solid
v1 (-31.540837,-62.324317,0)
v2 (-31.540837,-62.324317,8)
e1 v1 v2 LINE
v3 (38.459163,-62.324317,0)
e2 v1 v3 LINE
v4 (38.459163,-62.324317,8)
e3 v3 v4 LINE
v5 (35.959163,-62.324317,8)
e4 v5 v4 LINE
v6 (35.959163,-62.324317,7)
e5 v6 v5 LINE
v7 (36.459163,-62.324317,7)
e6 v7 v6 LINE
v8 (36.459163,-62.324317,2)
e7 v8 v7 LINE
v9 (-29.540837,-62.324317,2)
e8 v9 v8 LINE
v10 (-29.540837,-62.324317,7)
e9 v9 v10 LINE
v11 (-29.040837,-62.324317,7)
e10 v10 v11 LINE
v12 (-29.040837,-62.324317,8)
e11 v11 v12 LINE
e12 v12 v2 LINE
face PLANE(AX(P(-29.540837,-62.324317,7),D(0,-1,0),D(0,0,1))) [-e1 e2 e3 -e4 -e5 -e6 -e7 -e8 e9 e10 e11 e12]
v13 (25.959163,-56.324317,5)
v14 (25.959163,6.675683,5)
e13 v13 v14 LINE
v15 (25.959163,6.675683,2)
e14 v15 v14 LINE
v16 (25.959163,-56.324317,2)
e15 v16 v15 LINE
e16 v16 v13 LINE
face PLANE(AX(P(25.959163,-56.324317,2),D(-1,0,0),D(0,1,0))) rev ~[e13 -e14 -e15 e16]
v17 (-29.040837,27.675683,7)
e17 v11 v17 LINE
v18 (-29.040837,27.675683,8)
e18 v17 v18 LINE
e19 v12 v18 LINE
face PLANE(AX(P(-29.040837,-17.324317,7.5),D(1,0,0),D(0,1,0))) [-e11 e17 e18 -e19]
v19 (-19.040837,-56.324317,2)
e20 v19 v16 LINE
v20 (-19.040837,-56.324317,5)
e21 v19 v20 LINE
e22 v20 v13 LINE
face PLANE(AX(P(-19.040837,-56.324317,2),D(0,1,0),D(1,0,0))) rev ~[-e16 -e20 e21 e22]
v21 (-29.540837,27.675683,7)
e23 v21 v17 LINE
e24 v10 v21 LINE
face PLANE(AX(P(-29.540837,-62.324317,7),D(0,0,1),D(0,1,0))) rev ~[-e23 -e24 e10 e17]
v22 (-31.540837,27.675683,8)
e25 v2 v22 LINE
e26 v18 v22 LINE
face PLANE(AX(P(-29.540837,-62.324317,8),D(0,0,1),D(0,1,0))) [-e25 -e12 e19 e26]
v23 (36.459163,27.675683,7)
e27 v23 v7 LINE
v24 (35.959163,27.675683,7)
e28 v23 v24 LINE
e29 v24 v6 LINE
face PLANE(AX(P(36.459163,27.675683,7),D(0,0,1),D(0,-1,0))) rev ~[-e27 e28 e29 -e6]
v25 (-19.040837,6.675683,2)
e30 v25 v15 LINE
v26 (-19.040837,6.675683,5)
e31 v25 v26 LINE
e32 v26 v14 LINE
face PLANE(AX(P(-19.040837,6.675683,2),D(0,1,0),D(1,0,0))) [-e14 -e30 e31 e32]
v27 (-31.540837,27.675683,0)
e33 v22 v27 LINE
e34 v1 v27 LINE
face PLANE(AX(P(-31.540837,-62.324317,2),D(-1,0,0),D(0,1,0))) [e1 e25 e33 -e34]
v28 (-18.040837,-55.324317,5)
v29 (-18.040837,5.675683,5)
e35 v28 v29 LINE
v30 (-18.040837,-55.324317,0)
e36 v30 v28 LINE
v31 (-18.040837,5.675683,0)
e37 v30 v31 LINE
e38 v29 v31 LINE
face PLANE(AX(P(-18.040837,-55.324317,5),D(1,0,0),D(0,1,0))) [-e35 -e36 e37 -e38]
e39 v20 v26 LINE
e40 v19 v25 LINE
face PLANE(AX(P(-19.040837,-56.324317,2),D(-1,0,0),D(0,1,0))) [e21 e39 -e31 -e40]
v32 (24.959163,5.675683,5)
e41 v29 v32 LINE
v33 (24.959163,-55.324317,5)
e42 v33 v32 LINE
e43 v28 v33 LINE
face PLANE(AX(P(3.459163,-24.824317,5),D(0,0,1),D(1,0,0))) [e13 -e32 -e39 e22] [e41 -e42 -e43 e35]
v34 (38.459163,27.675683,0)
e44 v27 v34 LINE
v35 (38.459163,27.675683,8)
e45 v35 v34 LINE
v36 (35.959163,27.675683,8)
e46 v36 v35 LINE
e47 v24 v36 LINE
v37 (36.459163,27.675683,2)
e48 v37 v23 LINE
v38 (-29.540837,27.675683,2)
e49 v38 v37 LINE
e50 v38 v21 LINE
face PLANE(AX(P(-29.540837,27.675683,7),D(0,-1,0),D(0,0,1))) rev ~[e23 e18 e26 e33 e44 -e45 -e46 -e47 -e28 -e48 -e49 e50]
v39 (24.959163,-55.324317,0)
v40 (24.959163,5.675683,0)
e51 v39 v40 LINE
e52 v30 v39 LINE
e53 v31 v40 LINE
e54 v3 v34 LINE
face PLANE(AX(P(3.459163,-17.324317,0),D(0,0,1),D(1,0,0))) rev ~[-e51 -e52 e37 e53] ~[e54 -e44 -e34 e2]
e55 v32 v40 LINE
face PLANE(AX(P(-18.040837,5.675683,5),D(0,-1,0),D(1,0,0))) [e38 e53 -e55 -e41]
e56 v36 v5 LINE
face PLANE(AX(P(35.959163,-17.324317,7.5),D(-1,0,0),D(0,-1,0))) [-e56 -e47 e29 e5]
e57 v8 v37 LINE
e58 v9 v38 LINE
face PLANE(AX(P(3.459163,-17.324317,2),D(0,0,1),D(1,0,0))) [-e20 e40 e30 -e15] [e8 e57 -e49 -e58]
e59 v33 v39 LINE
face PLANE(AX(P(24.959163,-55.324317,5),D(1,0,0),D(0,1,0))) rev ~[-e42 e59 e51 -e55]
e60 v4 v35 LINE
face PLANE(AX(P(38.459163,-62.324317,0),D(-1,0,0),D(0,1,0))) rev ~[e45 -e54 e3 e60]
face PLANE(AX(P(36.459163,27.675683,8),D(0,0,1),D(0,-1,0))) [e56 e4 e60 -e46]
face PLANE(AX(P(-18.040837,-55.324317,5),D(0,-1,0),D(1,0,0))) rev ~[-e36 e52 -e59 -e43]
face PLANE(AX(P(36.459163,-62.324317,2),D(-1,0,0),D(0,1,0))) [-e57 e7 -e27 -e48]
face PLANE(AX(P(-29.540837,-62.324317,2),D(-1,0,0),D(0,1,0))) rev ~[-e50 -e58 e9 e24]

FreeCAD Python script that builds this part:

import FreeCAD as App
import Part
import Sketcher

V = App.Vector
Q = App.Units.Quantity


def add_polygon(sketch, points):
    """Adds a closed chain of lines whose ends are joined by coincident constraints."""
    first, n = sketch.GeometryCount, len(points)
    for a, b in zip(points, points[1:] + points[:1]):
        sketch.addGeometry(Part.LineSegment(App.Vector(*a, 0), App.Vector(*b, 0)), False)
    for i in range(n):
        sketch.addConstraint(Sketcher.Constraint("Coincident", first + i, 2, first + (i + 1) % n, 1))

doc = App.newDocument("Part")
body = doc.addObject("PartDesign::Body", "Body")

sketch1 = doc.addObject("Sketcher::SketchObject", "Sketch")
body.addObject(sketch1)
sketch1.AttachmentSupport = (doc.XY_Plane, [""])
sketch1.MapMode = "FlatFace"
add_polygon(sketch1, [(-32, 28), (-32, -62), (38, -62), (38, 28)])
sketch1.addConstraint([
    Sketcher.Constraint("Vertical", 0),
    Sketcher.Constraint("Horizontal", 1),
    Sketcher.Constraint("Vertical", 2),
    Sketcher.Constraint("Horizontal", 3),
    Sketcher.Constraint("DistanceX", 1, 1, 1, 2, Q("70 mm")),
    Sketcher.Constraint("DistanceY", 0, 2, 0, 1, Q("90 mm")),
    Sketcher.Constraint("DistanceX", 0, 2, -1, 1, Q("31.540837 mm")),
    Sketcher.Constraint("DistanceY", 0, 2, -1, 1, Q("62.324317 mm")),
])
pad1 = doc.addObject("PartDesign::Pad", "Pad")
body.addObject(pad1)
pad1.Profile = sketch1
pad1.Length = 2

sketch2 = doc.addObject("Sketcher::SketchObject", "Sketch001")
body.addObject(sketch2)
sketch2.AttachmentSupport = (doc.XY_Plane, [""])
sketch2.MapMode = "FlatFace"
sketch2.AttachmentOffset = App.Placement(V(0, 0, 2), App.Rotation())
add_polygon(sketch2, [(-18, 6), (-18, -55), (25, -55), (25, 6)])
sketch2.addConstraint([
    Sketcher.Constraint("Vertical", 0),
    Sketcher.Constraint("Horizontal", 1),
    Sketcher.Constraint("Vertical", 2),
    Sketcher.Constraint("Horizontal", 3),
    Sketcher.Constraint("DistanceX", 1, 1, 1, 2, Q("43 mm")),
    Sketcher.Constraint("DistanceY", 0, 2, 0, 1, Q("61 mm")),
    Sketcher.Constraint("DistanceX", 0, 2, -1, 1, Q("18.040837 mm")),
    Sketcher.Constraint("DistanceY", 0, 2, -1, 1, Q("55.324317 mm")),
])
pocket1 = doc.addObject("PartDesign::Pocket", "Pocket")
body.addObject(pocket1)
pocket1.Profile = sketch2
pocket1.Length = 2

sketch3 = doc.addObject("Sketcher::SketchObject", "Sketch002")
body.addObject(sketch3)
sketch3.AttachmentSupport = (doc.XY_Plane, [""])
sketch3.MapMode = "FlatFace"
sketch3.AttachmentOffset = App.Placement(V(0, 0, 2), App.Rotation())
add_polygon(sketch3, [(-19, 7), (-19, -56), (26, -56), (26, 7)])
sketch3.addConstraint([
    Sketcher.Constraint("Vertical", 0),
    Sketcher.Constraint("Horizontal", 1),
    Sketcher.Constraint("Vertical", 2),
    Sketcher.Constraint("Horizontal", 3),
    Sketcher.Constraint("DistanceX", 1, 1, 1, 2, Q("45 mm")),
    Sketcher.Constraint("DistanceY", 0, 2, 0, 1, Q("63 mm")),
    Sketcher.Constraint("DistanceX", 0, 2, -1, 1, Q("19.040837 mm")),
    Sketcher.Constraint("DistanceY", 0, 2, -1, 1, Q("56.324317 mm")),
])
pad2 = doc.addObject("PartDesign::Pad", "Pad001")
body.addObject(pad2)
pad2.Profile = sketch3
pad2.Length = 3

sketch4 = doc.addObject("Sketcher::SketchObject", "Sketch003")
body.addObject(sketch4)
sketch4.AttachmentSupport = (doc.XY_Plane, [""])
sketch4.MapMode = "FlatFace"
sketch4.AttachmentOffset = App.Placement(V(0, 0, 5), App.Rotation())
add_polygon(sketch4, [(-18, 6), (-18, -55), (25, -55), (25, 6)])
sketch4.addConstraint([
    Sketcher.Constraint("Vertical", 0),
    Sketcher.Constraint("Horizontal", 1),
    Sketcher.Constraint("Vertical", 2),
    Sketcher.Constraint("Horizontal", 3),
    Sketcher.Constraint("DistanceX", 1, 1, 1, 2, Q("43 mm")),
    Sketcher.Constraint("DistanceY", 0, 2, 0, 1, Q("61 mm")),
    Sketcher.Constraint("DistanceX", 0, 2, -1, 1, Q("18.040837 mm")),
    Sketcher.Constraint("DistanceY", 0, 2, -1, 1, Q("55.324317 mm")),
])
pocket2 = doc.addObject("PartDesign::Pocket", "Pocket001")
body.addObject(pocket2)
pocket2.Profile = sketch4
pocket2.Length = 3

sketch5 = doc.addObject("Sketcher::SketchObject", "Sketch004")
body.addObject(sketch5)
sketch5.AttachmentSupport = (doc.XY_Plane, [""])
sketch5.MapMode = "FlatFace"
sketch5.AttachmentOffset = App.Placement(V(0, 0, 2), App.Rotation())
add_polygon(sketch5, [(-31.5, 27.7), (-31.5, -62.3), (-29.5, -62.3), (-29.5, 27.7)])
add_polygon(sketch5, [(36.5, 27.7), (36.5, -62.3), (38.5, -62.3), (38.5, 27.7)])
sketch5.addConstraint([
    Sketcher.Constraint("Vertical", 0),
    Sketcher.Constraint("Horizontal", 1),
    Sketcher.Constraint("Vertical", 2),
    Sketcher.Constraint("Horizontal", 3),
    Sketcher.Constraint("Vertical", 4),
    Sketcher.Constraint("Horizontal", 5),
    Sketcher.Constraint("Vertical", 6),
    Sketcher.Constraint("Horizontal", 7),
    Sketcher.Constraint("Horizontal", 1, 2, 4, 2),
    Sketcher.Constraint("Horizontal", 3, 2, 6, 2),
    Sketcher.Constraint("Equal", 3, 5),
    Sketcher.Constraint("DistanceX", 1, 1, 1, 2, Q("2 mm")),
    Sketcher.Constraint("DistanceY", 0, 2, 0, 1, Q("90 mm")),
    Sketcher.Constraint("DistanceX", 1, 2, 4, 2, Q("66 mm")),
    Sketcher.Constraint("DistanceX", 0, 2, -1, 1, Q("31.540837 mm")),
    Sketcher.Constraint("DistanceY", 0, 2, -1, 1, Q("62.324317 mm")),
])
pad3 = doc.addObject("PartDesign::Pad", "Pad002")
body.addObject(pad3)
pad3.Profile = sketch5
pad3.Length = 6

sketch6 = doc.addObject("Sketcher::SketchObject", "Sketch005")
body.addObject(sketch6)
sketch6.AttachmentSupport = (doc.YZ_Plane, [""])
sketch6.MapMode = "FlatFace"
sketch6.AttachmentOffset = App.Placement(V(0, 0, 36.459163), App.Rotation())
add_polygon(sketch6, [(27.7, 8), (27.7, 7), (-62.3, 7), (-62.3, 8)])
sketch6.addConstraint([
    Sketcher.Constraint("Vertical", 0),
    Sketcher.Constraint("Horizontal", 1),
    Sketcher.Constraint("Vertical", 2),
    Sketcher.Constraint("Horizontal", 3),
    Sketcher.Constraint("DistanceX", 1, 2, 1, 1, Q("90 mm")),
    Sketcher.Constraint("DistanceY", 0, 2, 0, 1, Q("1 mm")),
    Sketcher.Constraint("DistanceY", -1, 1, 0, 2, Q("7 mm")),
    Sketcher.Constraint("DistanceX", -1, 1, 0, 2, Q("27.675683 mm")),
])
pad4 = doc.addObject("PartDesign::Pad", "Pad003")
body.addObject(pad4)
pad4.Profile = sketch6
pad4.Length = 0.5
pad4.Reversed = True

sketch7 = doc.addObject("Sketcher::SketchObject", "Sketch006")
body.addObject(sketch7)
sketch7.AttachmentSupport = (doc.YZ_Plane, [""])
sketch7.MapMode = "FlatFace"
sketch7.AttachmentOffset = App.Placement(V(0, 0, -29.540837), App.Rotation())
add_polygon(sketch7, [(-62.3, 8), (-62.3, 7), (27.7, 7), (27.7, 8)])
sketch7.addConstraint([
    Sketcher.Constraint("Vertical", 0),
    Sketcher.Constraint("Horizontal", 1),
    Sketcher.Constraint("Vertical", 2),
    Sketcher.Constraint("Horizontal", 3),
    Sketcher.Constraint("DistanceX", 1, 1, 1, 2, Q("90 mm")),
    Sketcher.Constraint("DistanceY", 0, 2, 0, 1, Q("1 mm")),
    Sketcher.Constraint("DistanceY", -1, 1, 0, 2, Q("7 mm")),
    Sketcher.Constraint("DistanceX", 0, 2, -1, 1, Q("62.324317 mm")),
])
pad5 = doc.addObject("PartDesign::Pad", "Pad004")
body.addObject(pad5)
pad5.Profile = sketch7
pad5.Length = 0.5

doc.recompute()
